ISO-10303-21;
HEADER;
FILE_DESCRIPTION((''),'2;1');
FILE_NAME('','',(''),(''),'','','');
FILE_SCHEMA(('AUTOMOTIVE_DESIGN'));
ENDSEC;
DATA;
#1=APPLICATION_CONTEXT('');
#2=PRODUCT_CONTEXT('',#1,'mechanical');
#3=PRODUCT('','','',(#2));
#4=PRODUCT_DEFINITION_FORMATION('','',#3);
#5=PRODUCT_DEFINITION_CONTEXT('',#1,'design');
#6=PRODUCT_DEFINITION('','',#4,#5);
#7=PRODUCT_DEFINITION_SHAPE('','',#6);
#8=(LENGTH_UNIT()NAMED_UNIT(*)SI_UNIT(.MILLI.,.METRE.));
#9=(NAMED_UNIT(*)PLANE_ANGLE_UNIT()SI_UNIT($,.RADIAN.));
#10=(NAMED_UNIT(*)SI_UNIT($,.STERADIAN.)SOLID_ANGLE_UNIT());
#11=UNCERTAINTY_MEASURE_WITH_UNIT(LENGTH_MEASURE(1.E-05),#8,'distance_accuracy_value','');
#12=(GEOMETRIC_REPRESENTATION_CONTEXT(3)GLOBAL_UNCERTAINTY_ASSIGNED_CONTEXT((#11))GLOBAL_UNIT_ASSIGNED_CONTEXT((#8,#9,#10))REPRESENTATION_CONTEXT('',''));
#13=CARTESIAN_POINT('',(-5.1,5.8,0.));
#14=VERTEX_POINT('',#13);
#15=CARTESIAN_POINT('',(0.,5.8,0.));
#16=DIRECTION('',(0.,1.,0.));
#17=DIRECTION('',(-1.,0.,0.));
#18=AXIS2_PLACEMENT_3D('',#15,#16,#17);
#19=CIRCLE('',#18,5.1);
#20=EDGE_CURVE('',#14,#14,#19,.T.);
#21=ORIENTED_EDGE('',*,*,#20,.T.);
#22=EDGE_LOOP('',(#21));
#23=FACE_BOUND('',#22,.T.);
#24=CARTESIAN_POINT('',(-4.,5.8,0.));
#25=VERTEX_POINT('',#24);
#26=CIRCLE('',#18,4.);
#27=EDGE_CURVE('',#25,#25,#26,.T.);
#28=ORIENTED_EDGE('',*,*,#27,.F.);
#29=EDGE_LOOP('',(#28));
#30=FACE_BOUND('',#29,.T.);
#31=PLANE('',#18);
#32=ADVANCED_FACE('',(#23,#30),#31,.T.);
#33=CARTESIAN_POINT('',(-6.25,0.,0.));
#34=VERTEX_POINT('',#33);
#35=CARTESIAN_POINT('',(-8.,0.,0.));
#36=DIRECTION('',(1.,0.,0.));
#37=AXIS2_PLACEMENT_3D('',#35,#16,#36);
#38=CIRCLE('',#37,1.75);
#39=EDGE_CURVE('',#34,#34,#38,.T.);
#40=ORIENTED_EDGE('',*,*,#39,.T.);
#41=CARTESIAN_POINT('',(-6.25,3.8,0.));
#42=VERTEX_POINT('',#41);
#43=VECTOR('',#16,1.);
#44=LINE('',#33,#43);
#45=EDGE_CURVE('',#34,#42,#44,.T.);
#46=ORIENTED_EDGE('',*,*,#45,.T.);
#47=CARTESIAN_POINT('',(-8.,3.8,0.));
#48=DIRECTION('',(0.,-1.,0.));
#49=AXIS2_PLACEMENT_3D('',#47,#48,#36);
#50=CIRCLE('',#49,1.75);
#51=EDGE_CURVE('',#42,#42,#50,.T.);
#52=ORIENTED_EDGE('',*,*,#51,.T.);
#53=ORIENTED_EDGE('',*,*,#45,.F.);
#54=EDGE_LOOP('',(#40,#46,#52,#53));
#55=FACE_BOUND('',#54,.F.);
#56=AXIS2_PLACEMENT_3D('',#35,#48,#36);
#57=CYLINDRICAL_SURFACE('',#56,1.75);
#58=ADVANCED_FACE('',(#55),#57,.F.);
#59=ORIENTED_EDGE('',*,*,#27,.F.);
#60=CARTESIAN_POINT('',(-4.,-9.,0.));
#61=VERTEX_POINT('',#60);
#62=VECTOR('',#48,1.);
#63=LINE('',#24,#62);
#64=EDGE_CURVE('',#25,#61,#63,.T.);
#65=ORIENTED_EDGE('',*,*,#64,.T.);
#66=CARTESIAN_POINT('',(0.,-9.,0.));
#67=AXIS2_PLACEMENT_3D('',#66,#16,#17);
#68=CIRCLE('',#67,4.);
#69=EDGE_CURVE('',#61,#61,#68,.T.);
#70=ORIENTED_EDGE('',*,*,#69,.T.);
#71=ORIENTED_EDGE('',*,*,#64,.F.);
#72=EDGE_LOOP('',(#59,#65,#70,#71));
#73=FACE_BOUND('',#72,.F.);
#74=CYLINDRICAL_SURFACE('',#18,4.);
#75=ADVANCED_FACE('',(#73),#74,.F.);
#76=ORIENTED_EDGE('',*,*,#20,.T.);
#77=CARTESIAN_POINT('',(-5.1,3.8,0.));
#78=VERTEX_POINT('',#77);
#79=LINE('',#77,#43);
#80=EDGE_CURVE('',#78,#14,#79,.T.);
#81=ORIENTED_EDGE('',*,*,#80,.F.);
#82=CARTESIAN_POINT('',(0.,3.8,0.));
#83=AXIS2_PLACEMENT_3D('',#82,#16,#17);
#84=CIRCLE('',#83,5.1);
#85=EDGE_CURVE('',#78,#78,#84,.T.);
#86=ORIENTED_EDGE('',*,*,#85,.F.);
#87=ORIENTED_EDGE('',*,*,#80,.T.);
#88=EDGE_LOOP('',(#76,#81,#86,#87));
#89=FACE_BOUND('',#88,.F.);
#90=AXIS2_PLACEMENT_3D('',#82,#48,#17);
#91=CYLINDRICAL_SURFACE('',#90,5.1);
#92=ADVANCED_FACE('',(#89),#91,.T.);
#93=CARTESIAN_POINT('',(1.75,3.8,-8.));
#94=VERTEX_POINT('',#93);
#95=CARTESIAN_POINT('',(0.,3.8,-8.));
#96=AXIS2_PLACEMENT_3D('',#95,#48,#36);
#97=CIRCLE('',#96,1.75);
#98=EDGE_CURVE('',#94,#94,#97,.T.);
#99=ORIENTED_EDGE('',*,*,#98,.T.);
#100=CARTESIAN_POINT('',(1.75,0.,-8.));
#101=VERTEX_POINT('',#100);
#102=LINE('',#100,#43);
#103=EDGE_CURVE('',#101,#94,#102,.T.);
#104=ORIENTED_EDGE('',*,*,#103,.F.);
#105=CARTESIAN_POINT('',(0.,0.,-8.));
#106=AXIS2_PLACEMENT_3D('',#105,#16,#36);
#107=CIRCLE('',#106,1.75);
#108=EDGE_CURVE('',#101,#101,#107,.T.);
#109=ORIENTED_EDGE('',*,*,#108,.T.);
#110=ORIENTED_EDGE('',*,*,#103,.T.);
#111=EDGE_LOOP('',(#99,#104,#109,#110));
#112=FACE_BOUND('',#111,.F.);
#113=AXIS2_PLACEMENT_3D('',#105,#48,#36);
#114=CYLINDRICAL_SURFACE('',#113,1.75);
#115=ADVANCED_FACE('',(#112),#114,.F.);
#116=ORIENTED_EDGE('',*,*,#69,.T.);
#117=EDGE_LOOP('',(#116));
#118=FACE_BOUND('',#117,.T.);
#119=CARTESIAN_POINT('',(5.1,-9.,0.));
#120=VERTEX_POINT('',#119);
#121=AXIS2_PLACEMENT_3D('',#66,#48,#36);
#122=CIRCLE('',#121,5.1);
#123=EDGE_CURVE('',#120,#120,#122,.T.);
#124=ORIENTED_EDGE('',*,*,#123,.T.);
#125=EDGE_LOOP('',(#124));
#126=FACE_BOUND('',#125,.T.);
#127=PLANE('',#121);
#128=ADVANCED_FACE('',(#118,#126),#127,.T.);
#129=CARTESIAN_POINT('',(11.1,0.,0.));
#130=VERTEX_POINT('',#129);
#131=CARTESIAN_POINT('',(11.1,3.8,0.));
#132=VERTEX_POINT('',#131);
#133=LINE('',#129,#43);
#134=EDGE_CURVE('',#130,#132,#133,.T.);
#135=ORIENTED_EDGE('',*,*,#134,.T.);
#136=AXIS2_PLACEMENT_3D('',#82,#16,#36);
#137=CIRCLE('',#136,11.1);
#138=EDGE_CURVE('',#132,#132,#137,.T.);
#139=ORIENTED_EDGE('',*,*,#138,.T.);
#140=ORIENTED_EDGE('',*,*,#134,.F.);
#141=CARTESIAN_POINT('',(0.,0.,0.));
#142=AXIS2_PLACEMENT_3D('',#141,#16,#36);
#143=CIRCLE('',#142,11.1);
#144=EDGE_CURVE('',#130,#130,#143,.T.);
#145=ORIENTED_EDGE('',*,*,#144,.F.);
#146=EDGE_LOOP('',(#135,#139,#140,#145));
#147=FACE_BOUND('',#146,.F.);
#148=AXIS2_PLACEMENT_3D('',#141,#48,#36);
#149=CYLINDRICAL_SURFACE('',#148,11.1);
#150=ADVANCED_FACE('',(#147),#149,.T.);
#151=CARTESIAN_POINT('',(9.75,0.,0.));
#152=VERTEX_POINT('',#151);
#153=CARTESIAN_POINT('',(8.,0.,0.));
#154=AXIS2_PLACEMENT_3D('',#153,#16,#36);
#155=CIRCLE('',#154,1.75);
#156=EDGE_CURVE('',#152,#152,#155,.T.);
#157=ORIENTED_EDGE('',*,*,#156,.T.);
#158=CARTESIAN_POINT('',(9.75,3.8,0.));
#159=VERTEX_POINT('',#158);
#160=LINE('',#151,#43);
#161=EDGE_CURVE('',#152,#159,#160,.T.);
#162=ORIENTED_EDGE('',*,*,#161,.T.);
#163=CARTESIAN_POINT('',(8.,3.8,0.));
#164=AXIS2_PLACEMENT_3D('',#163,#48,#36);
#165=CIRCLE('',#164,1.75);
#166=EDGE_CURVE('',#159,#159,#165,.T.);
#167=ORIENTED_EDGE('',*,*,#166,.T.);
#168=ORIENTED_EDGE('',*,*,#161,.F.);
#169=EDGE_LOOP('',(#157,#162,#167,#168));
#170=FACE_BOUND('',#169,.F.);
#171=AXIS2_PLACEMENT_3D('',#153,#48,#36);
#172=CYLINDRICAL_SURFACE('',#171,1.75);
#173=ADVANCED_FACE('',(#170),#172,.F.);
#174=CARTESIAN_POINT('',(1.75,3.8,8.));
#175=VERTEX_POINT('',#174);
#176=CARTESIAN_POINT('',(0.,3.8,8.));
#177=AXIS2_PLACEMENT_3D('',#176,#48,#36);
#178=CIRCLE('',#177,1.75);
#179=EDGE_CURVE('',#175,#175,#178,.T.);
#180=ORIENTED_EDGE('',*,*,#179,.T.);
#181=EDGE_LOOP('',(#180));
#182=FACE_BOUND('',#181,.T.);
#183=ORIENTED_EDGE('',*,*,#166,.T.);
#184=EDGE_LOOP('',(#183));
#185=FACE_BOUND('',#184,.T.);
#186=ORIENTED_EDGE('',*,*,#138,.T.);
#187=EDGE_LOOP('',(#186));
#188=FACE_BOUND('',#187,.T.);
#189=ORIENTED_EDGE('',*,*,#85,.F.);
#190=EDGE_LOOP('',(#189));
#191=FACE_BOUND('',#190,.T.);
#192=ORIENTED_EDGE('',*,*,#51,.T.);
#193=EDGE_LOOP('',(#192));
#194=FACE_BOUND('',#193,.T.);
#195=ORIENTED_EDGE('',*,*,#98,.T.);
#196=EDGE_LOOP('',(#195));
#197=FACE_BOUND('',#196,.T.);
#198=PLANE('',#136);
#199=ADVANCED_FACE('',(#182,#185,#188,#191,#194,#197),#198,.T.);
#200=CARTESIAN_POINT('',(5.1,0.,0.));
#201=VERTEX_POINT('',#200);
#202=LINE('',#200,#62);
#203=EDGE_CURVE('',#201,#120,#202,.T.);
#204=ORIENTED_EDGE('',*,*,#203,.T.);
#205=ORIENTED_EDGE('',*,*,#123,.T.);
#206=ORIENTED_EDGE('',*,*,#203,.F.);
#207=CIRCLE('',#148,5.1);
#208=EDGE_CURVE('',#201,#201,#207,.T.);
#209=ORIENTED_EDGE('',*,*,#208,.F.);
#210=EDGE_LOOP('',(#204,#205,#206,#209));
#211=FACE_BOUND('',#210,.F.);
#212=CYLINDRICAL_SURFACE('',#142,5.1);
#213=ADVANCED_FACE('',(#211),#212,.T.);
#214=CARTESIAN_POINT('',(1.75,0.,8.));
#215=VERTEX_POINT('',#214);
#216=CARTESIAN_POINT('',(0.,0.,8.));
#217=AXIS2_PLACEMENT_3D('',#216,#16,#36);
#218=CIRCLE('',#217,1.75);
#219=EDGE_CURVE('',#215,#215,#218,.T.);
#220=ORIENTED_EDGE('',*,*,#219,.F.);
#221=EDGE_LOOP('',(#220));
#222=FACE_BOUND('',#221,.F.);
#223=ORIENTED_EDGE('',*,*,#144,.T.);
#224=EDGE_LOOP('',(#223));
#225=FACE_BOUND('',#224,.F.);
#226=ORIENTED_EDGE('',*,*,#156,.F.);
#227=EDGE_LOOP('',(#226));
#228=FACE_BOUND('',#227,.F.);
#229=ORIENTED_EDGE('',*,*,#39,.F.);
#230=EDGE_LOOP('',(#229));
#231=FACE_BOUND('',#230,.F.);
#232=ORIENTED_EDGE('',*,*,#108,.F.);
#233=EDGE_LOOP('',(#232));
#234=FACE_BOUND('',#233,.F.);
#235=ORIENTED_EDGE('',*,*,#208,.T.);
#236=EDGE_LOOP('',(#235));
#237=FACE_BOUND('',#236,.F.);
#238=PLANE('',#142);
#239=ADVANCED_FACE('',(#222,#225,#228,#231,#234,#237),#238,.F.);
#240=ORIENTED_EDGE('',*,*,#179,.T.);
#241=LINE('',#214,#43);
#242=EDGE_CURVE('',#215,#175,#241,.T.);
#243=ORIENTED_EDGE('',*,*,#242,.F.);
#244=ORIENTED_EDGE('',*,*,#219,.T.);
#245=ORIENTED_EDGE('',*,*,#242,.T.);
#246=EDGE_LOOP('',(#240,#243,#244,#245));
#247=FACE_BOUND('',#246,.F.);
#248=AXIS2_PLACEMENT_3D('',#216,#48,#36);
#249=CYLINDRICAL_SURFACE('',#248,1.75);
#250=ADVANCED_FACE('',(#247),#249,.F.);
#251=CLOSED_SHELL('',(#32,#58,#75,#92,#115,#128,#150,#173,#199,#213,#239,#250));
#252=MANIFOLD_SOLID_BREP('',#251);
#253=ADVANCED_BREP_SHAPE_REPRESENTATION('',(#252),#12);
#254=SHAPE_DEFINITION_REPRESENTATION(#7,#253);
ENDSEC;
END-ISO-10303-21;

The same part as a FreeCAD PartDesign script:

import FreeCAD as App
import Part
import Sketcher
from FreeCAD import Vector

doc = App.newDocument("Part")
body = doc.addObject("PartDesign::Body", "Body")

# Sketch on XZ plane
sketch1 = body.newObject("Sketcher::SketchObject", "Sketch")
sketch1.AttachmentSupport = (doc.getObject("XZ_Plane"), [""])
sketch1.MapMode = "FlatFace"
sketch1.addGeometry(Part.Circle(Vector(0, 0, 0), Vector(0, 0, 1), 11.1), False)
sketch1.addConstraint([
    Sketcher.Constraint("Coincident", 0, 3, -1, 1),
    Sketcher.Constraint("Diameter", 0, 22.2),
])
pad1 = body.newObject("PartDesign::Pad", "Pad")
pad1.Profile = sketch1
pad1.Length = 3.8
pad1.Reversed = True

# Sketch on XZ plane
sketch2 = body.newObject("Sketcher::SketchObject", "Sketch001")
sketch2.AttachmentSupport = (doc.getObject("XZ_Plane"), [""])
sketch2.MapMode = "FlatFace"
sketch2.addGeometry(Part.Circle(Vector(0, 0, 0), Vector(0, 0, 1), 5.1), False)
sketch2.addConstraint([
    Sketcher.Constraint("Coincident", 0, 3, -1, 1),
    Sketcher.Constraint("Diameter", 0, 10.2),
])
pad2 = body.newObject("PartDesign::Pad", "Pad001")
pad2.Profile = sketch2
pad2.Length = 9

# Sketch on XZ plane
sketch3 = body.newObject("Sketcher::SketchObject", "Sketch002")
sketch3.AttachmentSupport = (doc.getObject("XZ_Plane"), [""])
sketch3.MapMode = "FlatFace"
sketch3.AttachmentOffset = App.Placement(Vector(0, 0, -3.8), App.Rotation())
sketch3.addGeometry(Part.Circle(Vector(0, 0, 0), Vector(0, 0, 1), 5.1), False)
sketch3.addConstraint([
    Sketcher.Constraint("Coincident", 0, 3, -1, 1),
    Sketcher.Constraint("Diameter", 0, 10.2),
])
pad3 = body.newObject("PartDesign::Pad", "Pad002")
pad3.Profile = sketch3
pad3.Length = 2
pad3.Reversed = True

# Sketch on XZ plane
sketch4 = body.newObject("Sketcher::SketchObject", "Sketch003")
sketch4.AttachmentSupport = (doc.getObject("XZ_Plane"), [""])
sketch4.MapMode = "FlatFace"
sketch4.AttachmentOffset = App.Placement(Vector(0, 0, -5.8), App.Rotation())
sketch4.addGeometry(Part.Circle(Vector(0, 0, 0), Vector(0, 0, 1), 4), False)
sketch4.addConstraint([
    Sketcher.Constraint("Coincident", 0, 3, -1, 1),
    Sketcher.Constraint("Diameter", 0, 8.0),
])
pocket1 = body.newObject("PartDesign::Pocket", "Pocket")
pocket1.Profile = sketch4
pocket1.Length = 17
pocket1.Reversed = True

# Sketch on XZ plane
sketch5 = body.newObject("Sketcher::SketchObject", "Sketch004")
sketch5.AttachmentSupport = (doc.getObject("XZ_Plane"), [""])
sketch5.MapMode = "FlatFace"
sketch5.addGeometry([
    Part.Circle(Vector(8, 0, 0), Vector(0, 0, 1), 1.75),
    Part.Circle(Vector(0, 8, 0), Vector(0, 0, 1), 1.75),
    Part.Circle(Vector(0, -8, 0), Vector(0, 0, 1), 1.75),
    Part.Circle(Vector(-8, 0, 0), Vector(0, 0, 1), 1.75),
], False)
sketch5.addConstraint([
    Sketcher.Constraint("Equal", 0, 1),
    Sketcher.Constraint("Equal", 1, 2),
    Sketcher.Constraint("Equal", 2, 3),
    Sketcher.Constraint("Symmetric", 1, 3, 2, 3, -1, 1),
    Sketcher.Constraint("Symmetric", 0, 3, 3, 3, -1, 1),
    Sketcher.Constraint("PointOnObject", 0, 3, -1),
    Sketcher.Constraint("PointOnObject", 1, 3, -2),
    Sketcher.Constraint("Diameter", 0, 3.5),
    Sketcher.Constraint("DistanceY", 2, 3, 1, 3, 16.0),
    Sketcher.Constraint("DistanceX", 3, 3, 0, 3, 16.0),
])
pocket2 = body.newObject("PartDesign::Pocket", "Pocket001")
pocket2.Profile = sketch5
pocket2.Length = 7

doc.recompute()
